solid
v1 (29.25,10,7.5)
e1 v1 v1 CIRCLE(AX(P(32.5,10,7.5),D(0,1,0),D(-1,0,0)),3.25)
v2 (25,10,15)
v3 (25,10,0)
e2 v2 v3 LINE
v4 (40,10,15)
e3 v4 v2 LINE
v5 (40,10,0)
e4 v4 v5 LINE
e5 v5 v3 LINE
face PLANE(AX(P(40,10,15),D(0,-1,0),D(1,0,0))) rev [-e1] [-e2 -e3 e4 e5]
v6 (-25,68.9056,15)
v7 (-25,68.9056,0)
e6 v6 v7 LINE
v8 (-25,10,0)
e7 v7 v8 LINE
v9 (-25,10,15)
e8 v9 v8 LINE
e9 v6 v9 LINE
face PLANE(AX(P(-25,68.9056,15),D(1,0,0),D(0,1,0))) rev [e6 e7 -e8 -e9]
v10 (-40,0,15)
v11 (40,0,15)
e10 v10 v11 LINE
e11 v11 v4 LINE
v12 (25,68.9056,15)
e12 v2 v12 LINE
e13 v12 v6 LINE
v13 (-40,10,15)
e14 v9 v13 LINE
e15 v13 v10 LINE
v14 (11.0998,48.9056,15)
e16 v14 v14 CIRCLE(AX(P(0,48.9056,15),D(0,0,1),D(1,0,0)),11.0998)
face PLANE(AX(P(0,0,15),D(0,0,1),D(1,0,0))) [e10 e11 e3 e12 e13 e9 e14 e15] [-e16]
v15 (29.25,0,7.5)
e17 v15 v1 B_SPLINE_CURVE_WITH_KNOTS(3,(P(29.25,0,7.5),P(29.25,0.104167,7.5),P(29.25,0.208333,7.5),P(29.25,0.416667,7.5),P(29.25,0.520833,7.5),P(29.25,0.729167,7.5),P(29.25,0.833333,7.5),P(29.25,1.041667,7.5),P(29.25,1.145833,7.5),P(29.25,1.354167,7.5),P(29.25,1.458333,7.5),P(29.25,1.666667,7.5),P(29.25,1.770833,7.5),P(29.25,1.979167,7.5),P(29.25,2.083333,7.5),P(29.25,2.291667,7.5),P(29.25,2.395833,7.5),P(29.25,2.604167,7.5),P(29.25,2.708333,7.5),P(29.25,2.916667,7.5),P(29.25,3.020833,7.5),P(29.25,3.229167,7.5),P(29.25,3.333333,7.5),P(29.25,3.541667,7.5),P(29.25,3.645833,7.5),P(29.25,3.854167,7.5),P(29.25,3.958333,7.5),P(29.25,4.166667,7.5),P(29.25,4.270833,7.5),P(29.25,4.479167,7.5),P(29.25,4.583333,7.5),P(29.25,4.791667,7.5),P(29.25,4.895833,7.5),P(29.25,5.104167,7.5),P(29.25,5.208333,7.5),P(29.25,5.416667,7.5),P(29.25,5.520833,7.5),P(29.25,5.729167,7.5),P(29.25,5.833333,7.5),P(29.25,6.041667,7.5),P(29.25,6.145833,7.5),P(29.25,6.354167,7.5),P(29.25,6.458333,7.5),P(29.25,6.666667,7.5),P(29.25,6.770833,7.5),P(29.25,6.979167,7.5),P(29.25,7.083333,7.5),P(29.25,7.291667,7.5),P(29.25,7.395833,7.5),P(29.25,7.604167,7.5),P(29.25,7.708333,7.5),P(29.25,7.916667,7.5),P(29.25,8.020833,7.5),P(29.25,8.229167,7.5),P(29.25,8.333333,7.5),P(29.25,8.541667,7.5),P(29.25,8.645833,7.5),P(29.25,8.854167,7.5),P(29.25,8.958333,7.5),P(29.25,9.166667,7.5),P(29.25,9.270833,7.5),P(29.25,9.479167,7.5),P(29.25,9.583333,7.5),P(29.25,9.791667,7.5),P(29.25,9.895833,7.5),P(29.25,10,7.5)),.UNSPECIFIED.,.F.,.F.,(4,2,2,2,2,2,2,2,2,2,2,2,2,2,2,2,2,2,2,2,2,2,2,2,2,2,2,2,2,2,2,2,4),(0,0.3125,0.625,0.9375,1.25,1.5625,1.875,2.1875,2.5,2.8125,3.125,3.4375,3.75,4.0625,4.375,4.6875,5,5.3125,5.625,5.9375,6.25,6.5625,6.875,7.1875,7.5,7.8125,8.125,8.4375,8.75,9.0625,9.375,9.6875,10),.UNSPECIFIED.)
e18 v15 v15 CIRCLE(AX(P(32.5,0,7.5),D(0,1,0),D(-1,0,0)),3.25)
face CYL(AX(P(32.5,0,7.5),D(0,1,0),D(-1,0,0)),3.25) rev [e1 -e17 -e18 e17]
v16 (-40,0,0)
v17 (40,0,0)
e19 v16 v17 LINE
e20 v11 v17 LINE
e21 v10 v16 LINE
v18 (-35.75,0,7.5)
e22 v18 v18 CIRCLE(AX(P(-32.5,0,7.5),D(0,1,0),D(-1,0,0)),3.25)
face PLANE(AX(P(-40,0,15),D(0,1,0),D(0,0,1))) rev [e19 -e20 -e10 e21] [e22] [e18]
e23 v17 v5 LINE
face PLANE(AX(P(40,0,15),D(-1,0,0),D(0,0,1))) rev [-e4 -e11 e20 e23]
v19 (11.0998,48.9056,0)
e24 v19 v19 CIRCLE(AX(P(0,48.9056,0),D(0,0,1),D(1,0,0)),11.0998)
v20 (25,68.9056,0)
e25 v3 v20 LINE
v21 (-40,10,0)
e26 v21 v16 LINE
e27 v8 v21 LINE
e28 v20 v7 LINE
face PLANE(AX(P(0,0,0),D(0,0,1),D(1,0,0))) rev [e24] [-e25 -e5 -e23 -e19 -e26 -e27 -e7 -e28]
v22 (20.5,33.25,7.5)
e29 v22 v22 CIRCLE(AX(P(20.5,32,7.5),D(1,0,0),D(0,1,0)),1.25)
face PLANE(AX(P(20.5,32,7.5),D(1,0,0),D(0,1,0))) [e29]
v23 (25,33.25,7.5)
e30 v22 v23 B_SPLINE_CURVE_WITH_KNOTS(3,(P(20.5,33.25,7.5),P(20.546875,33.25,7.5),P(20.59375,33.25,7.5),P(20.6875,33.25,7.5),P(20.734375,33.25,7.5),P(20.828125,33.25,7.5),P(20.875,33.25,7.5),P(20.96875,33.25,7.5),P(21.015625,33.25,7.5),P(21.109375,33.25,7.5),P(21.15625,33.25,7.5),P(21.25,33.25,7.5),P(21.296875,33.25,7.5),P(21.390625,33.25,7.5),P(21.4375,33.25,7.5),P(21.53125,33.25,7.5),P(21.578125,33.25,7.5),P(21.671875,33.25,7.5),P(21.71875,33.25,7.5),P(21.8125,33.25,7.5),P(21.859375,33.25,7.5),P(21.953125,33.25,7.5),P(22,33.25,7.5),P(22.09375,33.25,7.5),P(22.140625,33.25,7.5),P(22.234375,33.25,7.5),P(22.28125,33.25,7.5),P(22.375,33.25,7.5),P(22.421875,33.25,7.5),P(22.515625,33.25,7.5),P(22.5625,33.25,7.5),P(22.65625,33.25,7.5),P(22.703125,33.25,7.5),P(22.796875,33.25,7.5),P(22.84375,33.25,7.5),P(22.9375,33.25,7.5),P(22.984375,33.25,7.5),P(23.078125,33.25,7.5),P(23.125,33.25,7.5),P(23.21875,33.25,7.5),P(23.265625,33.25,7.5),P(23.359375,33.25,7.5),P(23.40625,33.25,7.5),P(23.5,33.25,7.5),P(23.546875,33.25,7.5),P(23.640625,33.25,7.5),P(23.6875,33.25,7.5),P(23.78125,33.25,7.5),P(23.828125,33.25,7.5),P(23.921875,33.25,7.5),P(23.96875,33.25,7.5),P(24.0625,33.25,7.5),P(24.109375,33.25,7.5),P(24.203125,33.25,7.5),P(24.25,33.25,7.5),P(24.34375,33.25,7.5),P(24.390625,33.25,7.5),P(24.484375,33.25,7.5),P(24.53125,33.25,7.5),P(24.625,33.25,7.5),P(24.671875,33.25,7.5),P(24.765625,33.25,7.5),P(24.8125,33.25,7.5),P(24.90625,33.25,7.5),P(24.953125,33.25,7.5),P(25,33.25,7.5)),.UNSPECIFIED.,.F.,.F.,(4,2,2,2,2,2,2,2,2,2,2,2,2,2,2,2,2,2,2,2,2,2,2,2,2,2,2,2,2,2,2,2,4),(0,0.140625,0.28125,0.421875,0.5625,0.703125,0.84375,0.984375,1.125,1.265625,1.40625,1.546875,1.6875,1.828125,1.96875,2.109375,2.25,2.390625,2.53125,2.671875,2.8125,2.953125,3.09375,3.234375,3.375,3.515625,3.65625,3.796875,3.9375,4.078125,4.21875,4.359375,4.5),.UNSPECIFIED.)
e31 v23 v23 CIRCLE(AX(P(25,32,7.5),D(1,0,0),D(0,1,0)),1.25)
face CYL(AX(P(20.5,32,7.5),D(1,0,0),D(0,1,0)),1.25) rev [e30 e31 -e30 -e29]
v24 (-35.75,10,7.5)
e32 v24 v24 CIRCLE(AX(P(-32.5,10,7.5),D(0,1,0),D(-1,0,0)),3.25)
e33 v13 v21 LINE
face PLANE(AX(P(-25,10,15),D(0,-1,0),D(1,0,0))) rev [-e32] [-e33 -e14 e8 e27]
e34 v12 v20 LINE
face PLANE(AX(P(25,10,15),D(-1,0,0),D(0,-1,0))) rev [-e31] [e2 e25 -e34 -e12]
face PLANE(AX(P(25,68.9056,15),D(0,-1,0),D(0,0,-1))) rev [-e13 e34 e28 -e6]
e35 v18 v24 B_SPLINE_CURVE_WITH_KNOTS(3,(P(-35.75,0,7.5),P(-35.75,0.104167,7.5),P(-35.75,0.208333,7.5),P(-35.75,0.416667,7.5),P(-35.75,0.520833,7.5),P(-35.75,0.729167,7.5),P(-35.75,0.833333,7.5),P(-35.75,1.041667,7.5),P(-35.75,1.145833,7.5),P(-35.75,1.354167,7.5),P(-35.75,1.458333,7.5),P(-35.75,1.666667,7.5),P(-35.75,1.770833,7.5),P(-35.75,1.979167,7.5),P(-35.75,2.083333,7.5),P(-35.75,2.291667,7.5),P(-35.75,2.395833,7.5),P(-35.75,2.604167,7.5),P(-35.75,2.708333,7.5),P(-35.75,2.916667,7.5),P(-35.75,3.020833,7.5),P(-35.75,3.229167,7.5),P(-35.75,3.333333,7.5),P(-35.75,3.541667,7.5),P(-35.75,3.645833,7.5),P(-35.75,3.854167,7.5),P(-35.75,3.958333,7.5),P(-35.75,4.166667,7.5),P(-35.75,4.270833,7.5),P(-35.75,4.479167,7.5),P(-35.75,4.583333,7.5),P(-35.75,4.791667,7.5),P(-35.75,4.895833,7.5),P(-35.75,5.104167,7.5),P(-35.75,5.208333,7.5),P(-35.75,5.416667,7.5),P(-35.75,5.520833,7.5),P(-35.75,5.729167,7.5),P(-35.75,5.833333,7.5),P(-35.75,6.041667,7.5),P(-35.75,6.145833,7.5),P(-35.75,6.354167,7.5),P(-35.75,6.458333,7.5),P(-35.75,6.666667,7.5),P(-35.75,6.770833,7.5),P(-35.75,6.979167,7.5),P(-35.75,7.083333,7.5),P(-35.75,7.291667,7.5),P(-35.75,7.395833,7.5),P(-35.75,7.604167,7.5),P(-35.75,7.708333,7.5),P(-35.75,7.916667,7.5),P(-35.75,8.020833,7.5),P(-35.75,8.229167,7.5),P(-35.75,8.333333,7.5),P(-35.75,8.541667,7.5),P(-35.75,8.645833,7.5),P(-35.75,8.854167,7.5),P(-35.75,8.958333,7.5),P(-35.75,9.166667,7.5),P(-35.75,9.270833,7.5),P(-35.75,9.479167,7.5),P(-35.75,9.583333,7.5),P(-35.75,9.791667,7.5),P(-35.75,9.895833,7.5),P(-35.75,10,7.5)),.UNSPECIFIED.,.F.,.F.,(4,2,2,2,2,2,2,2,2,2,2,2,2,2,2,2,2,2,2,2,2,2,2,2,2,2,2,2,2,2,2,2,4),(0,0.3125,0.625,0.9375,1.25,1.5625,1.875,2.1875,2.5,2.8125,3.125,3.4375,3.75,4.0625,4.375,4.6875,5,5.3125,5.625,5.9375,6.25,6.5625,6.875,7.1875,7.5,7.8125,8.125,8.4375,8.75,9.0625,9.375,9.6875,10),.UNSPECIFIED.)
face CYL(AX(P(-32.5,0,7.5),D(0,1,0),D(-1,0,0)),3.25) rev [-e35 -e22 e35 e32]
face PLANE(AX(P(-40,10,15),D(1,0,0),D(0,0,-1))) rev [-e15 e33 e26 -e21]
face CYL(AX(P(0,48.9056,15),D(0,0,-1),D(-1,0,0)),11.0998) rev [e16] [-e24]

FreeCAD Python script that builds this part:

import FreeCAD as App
import Part
import Sketcher

V = App.Vector
Q = App.Units.Quantity


def add_polygon(sketch, points):
    """Adds a closed chain of lines whose ends are joined by coincident constraints."""
    first, n = sketch.GeometryCount, len(points)
    for a, b in zip(points, points[1:] + points[:1]):
        sketch.addGeometry(Part.LineSegment(App.Vector(*a, 0), App.Vector(*b, 0)), False)
    for i in range(n):
        sketch.addConstraint(Sketcher.Constraint("Coincident", first + i, 2, first + (i + 1) % n, 1))

doc = App.newDocument("Part")
params = doc.addObject("Spreadsheet::Sheet", "Params")
for row, (alias, value) in enumerate([
    ("sketch1_width", "80 mm"),
    ("sketch1_width2", "15 mm"),
    ("sketch1_height", "10 mm"),
    ("pad1_length", "15 mm"),
    ("sketch2_diameter", "6.5 mm"),
    ("sketch3_diameter", "2.5 mm"),
    ("pocket2_length", "4.5 mm"),
], start=1):
    params.set(f"A{row}", alias)
    params.set(f"B{row}", "=" + value)
    params.setAlias(f"B{row}", alias)

body = doc.addObject("PartDesign::Body", "Body")

# Sketch on XY plane
sketch1 = doc.addObject("Sketcher::SketchObject", "Sketch")
body.addObject(sketch1)
sketch1.AttachmentSupport = (doc.XY_Plane, [""])
sketch1.MapMode = "FlatFace"
add_polygon(sketch1, [(-40, 0), (40, 0), (40, 10), (25, 10), (25, 69), (-25, 69), (-25, 10), (-40, 10)])  # lines 0-7
sketch1.addGeometry(Part.Circle(V(0, 49, 0), V(0, 0, 1), 11), False)  # 8
sketch1.addConstraint([
    Sketcher.Constraint("Horizontal", 0),
    Sketcher.Constraint("Vertical", 1),
    Sketcher.Constraint("Horizontal", 2),
    Sketcher.Constraint("Vertical", 3),
    Sketcher.Constraint("Horizontal", 4),
    Sketcher.Constraint("Vertical", 5),
    Sketcher.Constraint("Horizontal", 6),
    Sketcher.Constraint("Vertical", 7),
    Sketcher.Constraint("Symmetric", 0, 2, 7, 2, -1, 1),
    Sketcher.Constraint("Symmetric", 2, 2, 5, 2, -2),
    Sketcher.Constraint("PointOnObject", 8, 3, -2),
    Sketcher.Constraint("DistanceX", 0, 1, 0, 2, Q("80 mm")),
    Sketcher.Constraint("DistanceX", 2, 2, 2, 1, Q("15 mm")),
    Sketcher.Constraint("DistanceY", 1, 1, 1, 2, Q("10 mm")),
    Sketcher.Constraint("DistanceY", 8, 3, 3, 2, Q("20 mm")),
    Sketcher.Constraint("Diameter", 8, Q("22.1996 mm")),
    Sketcher.Constraint("DistanceY", 3, 1, 3, 2, Q("58.9056 mm")),
])
sketch1.setExpression("Constraints[19]", "Params.sketch1_width")
sketch1.setExpression("Constraints[20]", "Params.sketch1_width2")
sketch1.setExpression("Constraints[21]", "Params.sketch1_height")
pad1 = doc.addObject("PartDesign::Pad", "Pad")
body.addObject(pad1)
pad1.Profile = sketch1
pad1.setExpression("Length", "Params.pad1_length")

# Sketch on XZ plane
sketch2 = doc.addObject("Sketcher::SketchObject", "Sketch001")
body.addObject(sketch2)
sketch2.AttachmentSupport = (doc.XZ_Plane, [""])
sketch2.MapMode = "FlatFace"
sketch2.AttachmentOffset = App.Placement(V(0, 0, -10), App.Rotation())
sketch2.addGeometry([
    Part.Circle(V(-32.5, 7.5, 0), V(0, 0, 1), 3.2),
    Part.Circle(V(32.5, 7.5, 0), V(0, 0, 1), 3.2),
], False)
sketch2.addConstraint([
    Sketcher.Constraint("Equal", 0, 1),
    Sketcher.Constraint("Symmetric", 0, 3, 1, 3, -2),
    Sketcher.Constraint("Diameter", 0, Q("6.5 mm")),
    Sketcher.Constraint("DistanceX", 0, 3, 1, 3, Q("65 mm")),
    Sketcher.Constraint("DistanceY", -1, 1, 0, 3, Q("7.5 mm")),
])
sketch2.setExpression("Constraints[2]", "Params.sketch2_diameter")
pocket1 = doc.addObject("PartDesign::Pocket", "Pocket")
body.addObject(pocket1)
pocket1.Profile = sketch2
pocket1.Type = "ThroughAll"
pocket1.Reversed = True

# Sketch on YZ plane
sketch3 = doc.addObject("Sketcher::SketchObject", "Sketch002")
body.addObject(sketch3)
sketch3.AttachmentSupport = (doc.YZ_Plane, [""])
sketch3.MapMode = "FlatFace"
sketch3.AttachmentOffset = App.Placement(V(0, 0, 25), App.Rotation())
sketch3.addGeometry(Part.Circle(V(32, 7.5, 0), V(0, 0, 1), 1.2), False)
sketch3.addConstraint([
    Sketcher.Constraint("Diameter", 0, Q("2.5 mm")),
    Sketcher.Constraint("DistanceX", -1, 1, 0, 3, Q("32 mm")),
    Sketcher.Constraint("DistanceY", -1, 1, 0, 3, Q("7.5 mm")),
])
sketch3.setExpression("Constraints[0]", "Params.sketch3_diameter")
pocket2 = doc.addObject("PartDesign::Pocket", "Pocket001")
body.addObject(pocket2)
pocket2.Profile = sketch3
pocket2.setExpression("Length", "Params.pocket2_length")

doc.recompute()
